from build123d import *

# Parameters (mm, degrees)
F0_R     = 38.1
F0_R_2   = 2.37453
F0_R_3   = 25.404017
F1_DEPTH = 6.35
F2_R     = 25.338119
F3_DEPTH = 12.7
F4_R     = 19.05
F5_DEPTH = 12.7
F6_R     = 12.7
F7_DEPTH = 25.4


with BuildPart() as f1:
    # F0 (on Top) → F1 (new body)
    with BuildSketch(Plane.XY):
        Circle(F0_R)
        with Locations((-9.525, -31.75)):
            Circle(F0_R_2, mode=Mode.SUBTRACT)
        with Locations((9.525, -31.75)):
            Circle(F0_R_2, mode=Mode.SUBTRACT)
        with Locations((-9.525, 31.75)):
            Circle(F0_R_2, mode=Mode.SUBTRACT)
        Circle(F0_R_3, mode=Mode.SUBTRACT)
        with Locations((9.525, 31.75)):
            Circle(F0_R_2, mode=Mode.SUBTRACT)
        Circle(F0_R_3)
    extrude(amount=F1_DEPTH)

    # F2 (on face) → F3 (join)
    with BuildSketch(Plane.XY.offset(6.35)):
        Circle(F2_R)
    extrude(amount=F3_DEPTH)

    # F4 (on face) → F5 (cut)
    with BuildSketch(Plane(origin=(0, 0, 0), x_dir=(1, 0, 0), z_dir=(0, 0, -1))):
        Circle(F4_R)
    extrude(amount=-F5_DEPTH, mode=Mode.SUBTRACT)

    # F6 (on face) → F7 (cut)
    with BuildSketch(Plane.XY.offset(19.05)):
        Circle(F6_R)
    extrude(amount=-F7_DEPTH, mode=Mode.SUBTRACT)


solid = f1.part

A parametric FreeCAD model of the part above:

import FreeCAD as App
import Part
import Sketcher
Q = App.Units.Quantity

doc = App.newDocument("Part")
body = doc.addObject("PartDesign::Body", "Body")

# Sketch on XY plane
sketch1 = doc.addObject("Sketcher::SketchObject", "Sketch")
body.addObject(sketch1)
sketch1.AttachmentSupport = (doc.XY_Plane, [""])
sketch1.MapMode = "FlatFace"
sketch1.addGeometry([
    Part.Circle(App.Vector(0, 0, 0), App.Vector(0, 0, 1), 38.1),  # 0
    Part.Circle(App.Vector(-9.5, -31.8, 0), App.Vector(0, 0, 1), 2.4),  # 1
    Part.Circle(App.Vector(9.5, -31.8, 0), App.Vector(0, 0, 1), 2.4),  # 2
    Part.Circle(App.Vector(-9.5, 31.8, 0), App.Vector(0, 0, 1), 2.4),  # 3
    Part.Circle(App.Vector(9.5, 31.8, 0), App.Vector(0, 0, 1), 2.4),  # 4
], False)
sketch1.addConstraint([
    Sketcher.Constraint("Coincident", 0, 3, -1, 1),
    Sketcher.Constraint("Equal", 1, 2),
    Sketcher.Constraint("Equal", 2, 3),
    Sketcher.Constraint("Equal", 3, 4),
    Sketcher.Constraint("Symmetric", 2, 3, 3, 3, -1, 1),
    Sketcher.Constraint("Symmetric", 1, 3, 4, 3, -1, 1),
    Sketcher.Constraint("Symmetric", 1, 3, 2, 3, -2),
    Sketcher.Constraint("Diameter", 0, Q("3 in")),
    Sketcher.Constraint("DistanceY", 1, 3, 3, 3, Q("2.5 in")),
    Sketcher.Constraint("DistanceX", 1, 3, 2, 3, Q("0.75 in")),
    Sketcher.Constraint("Diameter", 1, 4.74906),
])
pad1 = doc.addObject("PartDesign::Pad", "Pad")
body.addObject(pad1)
pad1.Profile = sketch1
pad1.Length = Q("0.25 in")

# Sketch on XY plane
sketch2 = doc.addObject("Sketcher::SketchObject", "Sketch001")
body.addObject(sketch2)
sketch2.AttachmentSupport = (doc.XY_Plane, [""])
sketch2.MapMode = "FlatFace"
sketch2.AttachmentOffset = App.Placement(App.Vector(0, 0, 0.25 * 25.4), App.Rotation())
sketch2.addGeometry(Part.Circle(App.Vector(0, 0, 0), App.Vector(0, 0, 1), 25), False)
sketch2.addConstraint([
    Sketcher.Constraint("Coincident", 0, 3, -1, 1),
    Sketcher.Constraint("Diameter", 0, 50.676238),
])
pad2 = doc.addObject("PartDesign::Pad", "Pad001")
body.addObject(pad2)
pad2.Profile = sketch2
pad2.Length = Q("0.5 in")

# Sketch on XY plane
sketch3 = doc.addObject("Sketcher::SketchObject", "Sketch002")
body.addObject(sketch3)
sketch3.AttachmentSupport = (doc.XY_Plane, [""])
sketch3.MapMode = "FlatFace"
sketch3.addGeometry(Part.Circle(App.Vector(0, 0, 0), App.Vector(0, 0, 1), 19), False)
sketch3.addConstraint([
    Sketcher.Constraint("Coincident", 0, 3, -1, 1),
    Sketcher.Constraint("Diameter", 0, Q("1.5 in")),
])
pocket1 = doc.addObject("PartDesign::Pocket", "Pocket")
body.addObject(pocket1)
pocket1.Profile = sketch3
pocket1.Length = Q("0.5 in")
pocket1.Reversed = True

# Sketch on XY plane
sketch4 = doc.addObject("Sketcher::SketchObject", "Sketch003")
body.addObject(sketch4)
sketch4.AttachmentSupport = (doc.XY_Plane, [""])
sketch4.MapMode = "FlatFace"
sketch4.AttachmentOffset = App.Placement(App.Vector(0, 0, 0.75 * 25.4), App.Rotation())
sketch4.addGeometry(Part.Circle(App.Vector(0, 0, 0), App.Vector(0, 0, 1), 13), False)
sketch4.addConstraint([
    Sketcher.Constraint("Coincident", 0, 3, -1, 1),
    Sketcher.Constraint("Diameter", 0, Q("1 in")),
])
pocket2 = doc.addObject("PartDesign::Pocket", "Pocket001")
body.addObject(pocket2)
pocket2.Profile = sketch4
pocket2.Length = Q("1 in")

doc.recompute()
